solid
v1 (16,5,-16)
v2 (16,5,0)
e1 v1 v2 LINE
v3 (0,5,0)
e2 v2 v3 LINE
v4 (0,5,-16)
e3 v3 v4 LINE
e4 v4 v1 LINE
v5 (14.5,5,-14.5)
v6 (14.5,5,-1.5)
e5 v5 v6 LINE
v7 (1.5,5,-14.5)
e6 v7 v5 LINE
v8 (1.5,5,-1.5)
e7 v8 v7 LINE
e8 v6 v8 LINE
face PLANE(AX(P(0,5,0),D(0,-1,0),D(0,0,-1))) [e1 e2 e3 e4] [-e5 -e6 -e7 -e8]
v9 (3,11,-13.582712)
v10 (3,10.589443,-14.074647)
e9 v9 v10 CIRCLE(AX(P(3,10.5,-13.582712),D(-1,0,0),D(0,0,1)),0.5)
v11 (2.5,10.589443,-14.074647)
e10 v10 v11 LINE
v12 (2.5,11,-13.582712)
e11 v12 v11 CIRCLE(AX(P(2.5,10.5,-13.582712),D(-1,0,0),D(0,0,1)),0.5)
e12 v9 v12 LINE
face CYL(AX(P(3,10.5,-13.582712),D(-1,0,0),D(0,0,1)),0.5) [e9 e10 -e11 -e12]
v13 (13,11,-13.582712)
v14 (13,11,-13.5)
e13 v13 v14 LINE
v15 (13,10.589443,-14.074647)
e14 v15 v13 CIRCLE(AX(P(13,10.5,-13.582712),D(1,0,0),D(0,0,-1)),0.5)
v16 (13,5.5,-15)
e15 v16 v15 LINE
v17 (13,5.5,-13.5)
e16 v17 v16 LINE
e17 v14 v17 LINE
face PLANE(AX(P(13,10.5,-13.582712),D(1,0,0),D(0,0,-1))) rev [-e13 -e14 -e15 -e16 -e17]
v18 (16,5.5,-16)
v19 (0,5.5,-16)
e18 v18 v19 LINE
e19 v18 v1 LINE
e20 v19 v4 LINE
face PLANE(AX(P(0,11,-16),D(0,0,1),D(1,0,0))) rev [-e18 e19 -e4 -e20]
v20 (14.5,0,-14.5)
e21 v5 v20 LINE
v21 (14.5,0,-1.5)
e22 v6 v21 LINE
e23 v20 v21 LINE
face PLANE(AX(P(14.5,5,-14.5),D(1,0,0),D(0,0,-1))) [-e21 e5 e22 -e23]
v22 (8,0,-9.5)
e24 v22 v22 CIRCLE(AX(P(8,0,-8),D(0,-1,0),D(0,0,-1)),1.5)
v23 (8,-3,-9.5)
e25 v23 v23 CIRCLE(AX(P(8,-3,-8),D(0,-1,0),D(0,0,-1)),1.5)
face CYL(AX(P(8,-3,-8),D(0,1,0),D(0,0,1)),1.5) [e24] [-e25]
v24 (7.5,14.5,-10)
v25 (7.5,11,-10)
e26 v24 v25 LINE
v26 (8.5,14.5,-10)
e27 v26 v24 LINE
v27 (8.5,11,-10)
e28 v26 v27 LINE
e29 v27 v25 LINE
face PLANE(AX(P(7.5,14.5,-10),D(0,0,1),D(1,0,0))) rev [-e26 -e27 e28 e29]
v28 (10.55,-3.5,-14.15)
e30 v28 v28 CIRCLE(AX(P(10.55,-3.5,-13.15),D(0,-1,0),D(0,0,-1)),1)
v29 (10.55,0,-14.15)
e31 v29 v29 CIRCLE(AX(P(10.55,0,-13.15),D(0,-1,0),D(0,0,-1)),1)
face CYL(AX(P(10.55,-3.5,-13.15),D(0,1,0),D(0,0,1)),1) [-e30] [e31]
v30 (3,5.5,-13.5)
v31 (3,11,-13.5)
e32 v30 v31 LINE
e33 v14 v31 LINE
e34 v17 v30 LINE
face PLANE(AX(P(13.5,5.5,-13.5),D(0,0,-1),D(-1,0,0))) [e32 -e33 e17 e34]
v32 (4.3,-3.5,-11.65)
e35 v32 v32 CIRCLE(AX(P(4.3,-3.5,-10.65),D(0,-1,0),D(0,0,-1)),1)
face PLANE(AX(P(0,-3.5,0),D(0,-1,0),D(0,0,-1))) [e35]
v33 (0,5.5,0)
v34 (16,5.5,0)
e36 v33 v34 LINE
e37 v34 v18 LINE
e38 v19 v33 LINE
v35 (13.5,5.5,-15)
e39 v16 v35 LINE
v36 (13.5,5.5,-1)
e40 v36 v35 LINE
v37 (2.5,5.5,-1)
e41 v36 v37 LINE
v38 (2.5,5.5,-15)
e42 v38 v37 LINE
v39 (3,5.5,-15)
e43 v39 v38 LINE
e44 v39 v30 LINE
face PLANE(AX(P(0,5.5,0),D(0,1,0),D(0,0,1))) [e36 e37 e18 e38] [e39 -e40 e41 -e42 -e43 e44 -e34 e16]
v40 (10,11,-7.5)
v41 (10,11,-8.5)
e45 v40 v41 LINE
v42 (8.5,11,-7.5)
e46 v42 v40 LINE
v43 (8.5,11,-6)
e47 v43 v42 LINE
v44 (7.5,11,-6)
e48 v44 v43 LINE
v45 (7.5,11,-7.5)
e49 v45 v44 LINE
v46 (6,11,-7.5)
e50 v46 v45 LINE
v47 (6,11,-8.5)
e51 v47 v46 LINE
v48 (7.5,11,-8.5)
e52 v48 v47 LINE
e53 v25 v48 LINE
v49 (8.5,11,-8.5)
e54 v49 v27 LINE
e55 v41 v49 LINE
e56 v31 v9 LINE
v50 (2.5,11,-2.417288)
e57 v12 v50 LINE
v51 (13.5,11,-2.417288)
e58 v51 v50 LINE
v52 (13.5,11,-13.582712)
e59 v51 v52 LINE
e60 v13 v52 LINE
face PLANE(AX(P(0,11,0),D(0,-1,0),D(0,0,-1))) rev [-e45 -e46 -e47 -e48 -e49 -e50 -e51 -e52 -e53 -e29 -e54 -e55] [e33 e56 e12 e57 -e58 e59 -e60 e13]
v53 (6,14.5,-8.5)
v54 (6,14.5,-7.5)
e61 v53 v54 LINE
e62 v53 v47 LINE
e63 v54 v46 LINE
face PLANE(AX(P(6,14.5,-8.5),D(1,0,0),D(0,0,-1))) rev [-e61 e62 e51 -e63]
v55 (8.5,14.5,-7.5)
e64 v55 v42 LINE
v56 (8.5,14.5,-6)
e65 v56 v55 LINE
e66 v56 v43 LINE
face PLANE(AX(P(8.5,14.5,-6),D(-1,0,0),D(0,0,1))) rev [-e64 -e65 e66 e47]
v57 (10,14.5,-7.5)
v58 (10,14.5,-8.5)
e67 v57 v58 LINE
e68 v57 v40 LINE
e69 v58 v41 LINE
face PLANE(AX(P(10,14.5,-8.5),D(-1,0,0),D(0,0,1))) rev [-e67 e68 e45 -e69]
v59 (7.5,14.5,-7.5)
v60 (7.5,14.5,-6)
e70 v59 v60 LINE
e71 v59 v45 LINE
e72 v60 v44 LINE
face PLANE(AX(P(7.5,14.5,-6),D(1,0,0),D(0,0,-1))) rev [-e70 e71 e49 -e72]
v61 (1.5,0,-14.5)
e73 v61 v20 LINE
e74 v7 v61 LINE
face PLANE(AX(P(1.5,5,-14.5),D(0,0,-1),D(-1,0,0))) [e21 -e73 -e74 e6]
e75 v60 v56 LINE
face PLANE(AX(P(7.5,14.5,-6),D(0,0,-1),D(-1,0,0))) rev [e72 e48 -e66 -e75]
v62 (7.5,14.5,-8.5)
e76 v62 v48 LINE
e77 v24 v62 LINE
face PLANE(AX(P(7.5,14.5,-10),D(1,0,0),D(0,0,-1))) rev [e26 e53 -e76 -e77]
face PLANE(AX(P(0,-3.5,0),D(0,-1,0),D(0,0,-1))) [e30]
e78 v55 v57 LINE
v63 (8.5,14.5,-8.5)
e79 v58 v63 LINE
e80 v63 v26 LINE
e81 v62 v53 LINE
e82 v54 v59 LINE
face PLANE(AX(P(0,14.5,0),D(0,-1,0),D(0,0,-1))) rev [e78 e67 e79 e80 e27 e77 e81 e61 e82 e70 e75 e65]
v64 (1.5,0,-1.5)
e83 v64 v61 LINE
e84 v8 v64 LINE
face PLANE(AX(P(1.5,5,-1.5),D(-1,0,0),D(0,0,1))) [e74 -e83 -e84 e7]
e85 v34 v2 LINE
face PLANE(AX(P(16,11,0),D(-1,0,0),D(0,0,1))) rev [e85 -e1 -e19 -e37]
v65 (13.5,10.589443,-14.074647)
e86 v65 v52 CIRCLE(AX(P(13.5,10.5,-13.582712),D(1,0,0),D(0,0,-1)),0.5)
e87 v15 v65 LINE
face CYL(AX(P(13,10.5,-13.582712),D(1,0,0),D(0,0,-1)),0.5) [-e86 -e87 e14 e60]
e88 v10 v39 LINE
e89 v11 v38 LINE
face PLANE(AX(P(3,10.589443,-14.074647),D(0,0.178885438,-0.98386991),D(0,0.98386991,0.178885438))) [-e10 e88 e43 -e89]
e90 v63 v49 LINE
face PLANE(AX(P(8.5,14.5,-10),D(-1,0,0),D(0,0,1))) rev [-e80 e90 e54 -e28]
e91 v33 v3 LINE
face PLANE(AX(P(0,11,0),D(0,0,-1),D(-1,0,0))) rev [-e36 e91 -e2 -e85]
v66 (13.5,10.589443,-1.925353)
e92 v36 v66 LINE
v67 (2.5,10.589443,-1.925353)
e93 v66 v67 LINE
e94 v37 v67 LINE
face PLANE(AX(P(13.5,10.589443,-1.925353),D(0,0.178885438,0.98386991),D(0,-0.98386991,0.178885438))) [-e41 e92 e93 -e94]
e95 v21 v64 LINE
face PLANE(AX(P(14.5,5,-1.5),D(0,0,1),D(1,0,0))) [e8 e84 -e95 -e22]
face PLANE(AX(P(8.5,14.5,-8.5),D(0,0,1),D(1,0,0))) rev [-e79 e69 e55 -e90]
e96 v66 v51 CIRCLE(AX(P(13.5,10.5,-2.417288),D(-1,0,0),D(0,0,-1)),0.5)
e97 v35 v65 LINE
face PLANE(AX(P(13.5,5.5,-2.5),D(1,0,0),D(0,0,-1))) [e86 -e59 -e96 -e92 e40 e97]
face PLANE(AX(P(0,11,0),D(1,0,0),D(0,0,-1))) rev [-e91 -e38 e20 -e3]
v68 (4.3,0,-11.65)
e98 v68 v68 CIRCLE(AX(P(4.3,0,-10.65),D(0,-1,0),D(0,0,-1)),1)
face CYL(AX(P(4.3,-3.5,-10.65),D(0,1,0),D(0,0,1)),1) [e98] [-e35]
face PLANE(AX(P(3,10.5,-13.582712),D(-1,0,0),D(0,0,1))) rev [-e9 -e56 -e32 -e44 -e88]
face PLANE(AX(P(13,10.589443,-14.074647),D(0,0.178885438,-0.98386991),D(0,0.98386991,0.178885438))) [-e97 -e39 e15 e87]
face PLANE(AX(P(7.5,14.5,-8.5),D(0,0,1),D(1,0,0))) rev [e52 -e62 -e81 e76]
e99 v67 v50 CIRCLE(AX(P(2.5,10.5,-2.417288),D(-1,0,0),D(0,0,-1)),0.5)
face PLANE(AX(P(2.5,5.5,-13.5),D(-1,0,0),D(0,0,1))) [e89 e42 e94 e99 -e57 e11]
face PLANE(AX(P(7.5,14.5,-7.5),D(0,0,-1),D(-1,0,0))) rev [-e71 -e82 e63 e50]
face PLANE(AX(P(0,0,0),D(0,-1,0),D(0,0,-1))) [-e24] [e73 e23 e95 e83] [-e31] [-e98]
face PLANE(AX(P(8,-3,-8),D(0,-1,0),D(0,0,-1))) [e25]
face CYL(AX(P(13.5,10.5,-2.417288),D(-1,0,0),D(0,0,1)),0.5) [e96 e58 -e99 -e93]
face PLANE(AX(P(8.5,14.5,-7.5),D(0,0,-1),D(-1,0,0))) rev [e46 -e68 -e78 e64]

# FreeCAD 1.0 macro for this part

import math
import FreeCAD as App
import Part
import Sketcher
Q = App.Units.Quantity


def add_polygon(sketch, points):
    """Adds a closed chain of lines whose ends are joined by coincident constraints."""
    first, n = sketch.GeometryCount, len(points)
    for a, b in zip(points, points[1:] + points[:1]):
        sketch.addGeometry(Part.LineSegment(App.Vector(*a, 0), App.Vector(*b, 0)), False)
    for i in range(n):
        sketch.addConstraint(Sketcher.Constraint("Coincident", first + i, 2, first + (i + 1) % n, 1))

doc = App.newDocument("Part")
body = doc.addObject("PartDesign::Body", "Body")

sketch1 = body.newObject("Sketcher::SketchObject", "Sketch")
sketch1.AttachmentSupport = (doc.getObject("XZ_Plane"), [""])
sketch1.MapMode = "FlatFace"
add_polygon(sketch1, [(0, -16), (0, 0), (16, 0), (16, -16)])
sketch1.addConstraint(Sketcher.Constraint("Vertical", 0))
sketch1.addConstraint(Sketcher.Constraint("Horizontal", 1))
sketch1.addConstraint(Sketcher.Constraint("Vertical", 2))
sketch1.addConstraint(Sketcher.Constraint("Horizontal", 3))
sketch1.addConstraint(Sketcher.Constraint("Coincident", 0, 2, -1, 1))
sketch1.addConstraint(Sketcher.Constraint("Equal", 3, 0))
sketch1.addConstraint(Sketcher.Constraint("DistanceX", 1, 1, 1, 2, Q("16 mm")))
pad1 = body.newObject("PartDesign::Pad", "Pad")
pad1.Profile = sketch1
pad1.Length = 11
pad1.Reversed = True

sketch2 = body.newObject("Sketcher::SketchObject", "Sketch001")
sketch2.AttachmentSupport = (doc.getObject("XZ_Plane"), [""])
sketch2.MapMode = "FlatFace"
sketch2.addGeometry(Part.Circle(App.Vector(8, -8, 0), App.Vector(0, 0, 1), 1.5), False)
sketch2.addConstraint(Sketcher.Constraint("Diameter", 0, Q("3 mm")))
sketch2.addConstraint(Sketcher.Constraint("DistanceX", -1, 1, 0, 3, Q("8 mm")))
sketch2.addConstraint(Sketcher.Constraint("DistanceY", 0, 3, -1, 1, Q("8 mm")))
pad2 = body.newObject("PartDesign::Pad", "Pad001")
pad2.Profile = sketch2
pad2.Length = 3

sketch3 = body.newObject("Sketcher::SketchObject", "Sketch002")
sketch3.AttachmentSupport = (doc.getObject("XZ_Plane"), [""])
sketch3.MapMode = "FlatFace"
add_polygon(sketch3, [(0, 0), (0, -16), (16, -16), (16, 0)])
add_polygon(sketch3, [(14.5, -14.5), (1.5, -14.5), (1.5, -1.5), (14.5, -1.5)])
sketch3.addConstraint(Sketcher.Constraint("Vertical", 0))
sketch3.addConstraint(Sketcher.Constraint("Horizontal", 1))
sketch3.addConstraint(Sketcher.Constraint("Vertical", 2))
sketch3.addConstraint(Sketcher.Constraint("Horizontal", 3))
sketch3.addConstraint(Sketcher.Constraint("Horizontal", 4))
sketch3.addConstraint(Sketcher.Constraint("Vertical", 5))
sketch3.addConstraint(Sketcher.Constraint("Horizontal", 6))
sketch3.addConstraint(Sketcher.Constraint("Vertical", 7))
sketch3.addConstraint(Sketcher.Constraint("Coincident", 3, 2, -1, 1))
sketch3.addConstraint(Sketcher.Constraint("Equal", 3, 0))
sketch3.addConstraint(Sketcher.Constraint("Equal", 6, 5))
sketch3.addConstraint(Sketcher.Constraint("DistanceX", 1, 1, 1, 2, Q("16 mm")))
sketch3.addConstraint(Sketcher.Constraint("DistanceX", 4, 2, 4, 1, Q("13 mm")))
sketch3.addConstraint(Sketcher.Constraint("DistanceX", -1, 1, 4, 2, Q("1.5 mm")))
sketch3.addConstraint(Sketcher.Constraint("DistanceY", 4, 2, -1, 1, Q("14.5 mm")))
pocket1 = body.newObject("PartDesign::Pocket", "Pocket")
pocket1.Profile = sketch3
pocket1.Length = 5

sketch4 = body.newObject("Sketcher::SketchObject", "Sketch003")
sketch4.AttachmentSupport = (doc.getObject("XZ_Plane"), [""])
sketch4.MapMode = "FlatFace"
sketch4.AttachmentOffset = App.Placement(App.Vector(0, 0, -11), App.Rotation())
add_polygon(sketch4, [(7.5, -10), (7.5, -8.5), (6, -8.5), (6, -7.5), (7.5, -7.5), (7.5, -6), (8.5, -6), (8.5, -7.5), (10, -7.5), (10, -8.5), (8.5, -8.5), (8.5, -10)])
sketch4.addConstraint(Sketcher.Constraint("Vertical", 0))
sketch4.addConstraint(Sketcher.Constraint("Horizontal", 1))
sketch4.addConstraint(Sketcher.Constraint("Vertical", 2))
sketch4.addConstraint(Sketcher.Constraint("Horizontal", 3))
sketch4.addConstraint(Sketcher.Constraint("Vertical", 4))
sketch4.addConstraint(Sketcher.Constraint("Horizontal", 5))
sketch4.addConstraint(Sketcher.Constraint("Vertical", 6))
sketch4.addConstraint(Sketcher.Constraint("Horizontal", 7))
sketch4.addConstraint(Sketcher.Constraint("Vertical", 8))
sketch4.addConstraint(Sketcher.Constraint("Horizontal", 9))
sketch4.addConstraint(Sketcher.Constraint("Vertical", 10))
sketch4.addConstraint(Sketcher.Constraint("Horizontal", 11))
sketch4.addConstraint(Sketcher.Constraint("Horizontal", 3, 2, 6, 2))
sketch4.addConstraint(Sketcher.Constraint("Horizontal", 1, 2, 8, 2))
sketch4.addConstraint(Sketcher.Constraint("Vertical", 0, 2, 3, 2))
sketch4.addConstraint(Sketcher.Constraint("Vertical", 6, 2, 9, 2))
sketch4.addConstraint(Sketcher.Constraint("Equal", 3, 7))
sketch4.addConstraint(Sketcher.Constraint("Equal", 9, 0))
sketch4.addConstraint(Sketcher.Constraint("Equal", 11, 2))
sketch4.addConstraint(Sketcher.Constraint("Equal", 0, 4))
sketch4.addConstraint(Sketcher.Constraint("DistanceX", 5, 1, 5, 2, Q("1 mm")))
sketch4.addConstraint(Sketcher.Constraint("DistanceX", 1, 2, 1, 1, Q("1.5 mm")))
sketch4.addConstraint(Sketcher.Constraint("DistanceX", -1, 1, 1, 2, Q("6 mm")))
sketch4.addConstraint(Sketcher.Constraint("DistanceY", 4, 2, -1, 1, Q("6 mm")))
pad3 = body.newObject("PartDesign::Pad", "Pad002")
pad3.Profile = sketch4
pad3.Length = 3.5
pad3.Reversed = True

sketch5 = body.newObject("Sketcher::SketchObject", "Sketch004")
sketch5.AttachmentSupport = (doc.getObject("XZ_Plane"), [""])
sketch5.MapMode = "FlatFace"
sketch5.AttachmentOffset = App.Placement(App.Vector(0, 0, -11), App.Rotation())
add_polygon(sketch5, [(0, -16), (0, 0), (16, 0), (16, -16)])
add_polygon(sketch5, [(13.5, -2.5), (2.5, -2.5), (2.5, -13.5), (13.5, -13.5)])
sketch5.addConstraint(Sketcher.Constraint("Vertical", 0))
sketch5.addConstraint(Sketcher.Constraint("Horizontal", 1))
sketch5.addConstraint(Sketcher.Constraint("Vertical", 2))
sketch5.addConstraint(Sketcher.Constraint("Horizontal", 3))
sketch5.addConstraint(Sketcher.Constraint("Horizontal", 4))
sketch5.addConstraint(Sketcher.Constraint("Vertical", 5))
sketch5.addConstraint(Sketcher.Constraint("Horizontal", 6))
sketch5.addConstraint(Sketcher.Constraint("Vertical", 7))
sketch5.addConstraint(Sketcher.Constraint("Coincident", 0, 2, -1, 1))
sketch5.addConstraint(Sketcher.Constraint("Equal", 3, 0))
sketch5.addConstraint(Sketcher.Constraint("Equal", 6, 5))
sketch5.addConstraint(Sketcher.Constraint("DistanceX", 1, 1, 1, 2, Q("16 mm")))
sketch5.addConstraint(Sketcher.Constraint("DistanceX", 4, 2, 4, 1, Q("11 mm")))
sketch5.addConstraint(Sketcher.Constraint("DistanceX", -1, 1, 4, 2, Q("2.5 mm")))
sketch5.addConstraint(Sketcher.Constraint("DistanceY", 4, 2, -1, 1, Q("2.5 mm")))
pocket2 = body.newObject("PartDesign::Pocket", "Pocket001")
pocket2.Profile = sketch5
pocket2.Length = 5.5
pocket2.Reversed = True

sketch6 = body.newObject("Sketcher::SketchObject", "Sketch005")
sketch6.AttachmentSupport = (doc.getObject("YZ_Plane"), [""])
sketch6.MapMode = "FlatFace"
sketch6.AttachmentOffset = App.Placement(App.Vector(0, 0, 2.5), App.Rotation())
sketch6.addGeometry(Part.LineSegment(App.Vector(11, -13.5, 0), App.Vector(11, -13.582712, 0)), False)
sketch6.addGeometry(Part.ArcOfCircle(Part.Circle(App.Vector(10.5, -13.582712, 0), App.Vector(0, 0, 1), 0.5), math.radians(-79.695154), math.radians(0)), False)
sketch6.addGeometry(Part.LineSegment(App.Vector(10.589443, -14.074647, 0), App.Vector(5.5, -15, 0)), False)
sketch6.addGeometry(Part.LineSegment(App.Vector(5.5, -15, 0), App.Vector(5.5, -13.5, 0)), False)
sketch6.addGeometry(Part.LineSegment(App.Vector(5.5, -13.5, 0), App.Vector(11, -13.5, 0)), False)
sketch6.addConstraint(Sketcher.Constraint("Tangent", 0, 2, 1, 2))
sketch6.addConstraint(Sketcher.Constraint("Tangent", 1, 1, 2, 1))
sketch6.addConstraint(Sketcher.Constraint("Coincident", 2, 2, 3, 1))
sketch6.addConstraint(Sketcher.Constraint("Coincident", 3, 2, 4, 1))
sketch6.addConstraint(Sketcher.Constraint("Coincident", 4, 2, 0, 1))
sketch6.addConstraint(Sketcher.Constraint("Vertical", 0))
sketch6.addConstraint(Sketcher.Constraint("Vertical", 3))
sketch6.addConstraint(Sketcher.Constraint("Horizontal", 4))
sketch6.addConstraint(Sketcher.Constraint("Radius", 1, Q("0.5 mm")))
sketch6.addConstraint(Sketcher.Constraint("DistanceX", 4, 1, 4, 2, Q("5.5 mm")))
sketch6.addConstraint(Sketcher.Constraint("DistanceY", 3, 1, 3, 2, Q("1.5 mm")))
sketch6.addConstraint(Sketcher.Constraint("DistanceX", -1, 1, 0, 2, Q("11 mm")))
sketch6.addConstraint(Sketcher.Constraint("DistanceY", 2, 2, -1, 1, Q("15 mm")))
sketch6.addConstraint(Sketcher.Constraint("DistanceY", 0, 2, 0, 1, Q("0.082712 mm")))
pad4 = body.newObject("PartDesign::Pad", "Pad003")
pad4.Profile = sketch6
pad4.Length = 0.5

sketch7 = body.newObject("Sketcher::SketchObject", "Sketch006")
sketch7.AttachmentSupport = (doc.getObject("YZ_Plane"), [""])
sketch7.MapMode = "FlatFace"
sketch7.AttachmentOffset = App.Placement(App.Vector(0, 0, 13), App.Rotation())
sketch7.addGeometry(Part.LineSegment(App.Vector(5.5, -13.5, 0), App.Vector(5.5, -15, 0)), False)
sketch7.addGeometry(Part.LineSegment(App.Vector(5.5, -15, 0), App.Vector(10.589443, -14.074647, 0)), False)
sketch7.addGeometry(Part.ArcOfCircle(Part.Circle(App.Vector(10.5, -13.582712, 0), App.Vector(0, 0, 1), 0.5), math.radians(-79.695154), math.radians(0)), False)
sketch7.addGeometry(Part.LineSegment(App.Vector(11, -13.582712, 0), App.Vector(11, -13.5, 0)), False)
sketch7.addGeometry(Part.LineSegment(App.Vector(11, -13.5, 0), App.Vector(5.5, -13.5, 0)), False)
sketch7.addConstraint(Sketcher.Constraint("Coincident", 0, 2, 1, 1))
sketch7.addConstraint(Sketcher.Constraint("Tangent", 1, 2, 2, 1))
sketch7.addConstraint(Sketcher.Constraint("Tangent", 2, 2, 3, 1))
sketch7.addConstraint(Sketcher.Constraint("Coincident", 3, 2, 4, 1))
sketch7.addConstraint(Sketcher.Constraint("Coincident", 4, 2, 0, 1))
sketch7.addConstraint(Sketcher.Constraint("Vertical", 0))
sketch7.addConstraint(Sketcher.Constraint("Vertical", 3))
sketch7.addConstraint(Sketcher.Constraint("Horizontal", 4))
sketch7.addConstraint(Sketcher.Constraint("Radius", 2, Q("0.5 mm")))
sketch7.addConstraint(Sketcher.Constraint("DistanceX", 4, 2, 4, 1, Q("5.5 mm")))
sketch7.addConstraint(Sketcher.Constraint("DistanceY", 0, 2, 0, 1, Q("1.5 mm")))
sketch7.addConstraint(Sketcher.Constraint("DistanceY", 0, 2, -1, 1, Q("15 mm")))
sketch7.addConstraint(Sketcher.Constraint("DistanceX", -1, 1, 2, 2, Q("11 mm")))
sketch7.addConstraint(Sketcher.Constraint("DistanceY", 3, 1, 3, 2, Q("0.082712 mm")))
pad5 = body.newObject("PartDesign::Pad", "Pad004")
pad5.Profile = sketch7
pad5.Length = 0.5

sketch8 = body.newObject("Sketcher::SketchObject", "Sketch007")
sketch8.AttachmentSupport = (doc.getObject("YZ_Plane"), [""])
sketch8.MapMode = "FlatFace"
sketch8.AttachmentOffset = App.Placement(App.Vector(0, 0, 2.5), App.Rotation())
sketch8.addGeometry(Part.LineSegment(App.Vector(11, -2.417288, 0), App.Vector(11, -2.5, 0)), False)
sketch8.addGeometry(Part.LineSegment(App.Vector(11, -2.5, 0), App.Vector(5.5, -2.5, 0)), False)
sketch8.addGeometry(Part.LineSegment(App.Vector(5.5, -2.5, 0), App.Vector(5.5, -1, 0)), False)
sketch8.addGeometry(Part.LineSegment(App.Vector(5.5, -1, 0), App.Vector(10.589443, -1.925353, 0)), False)
sketch8.addGeometry(Part.ArcOfCircle(Part.Circle(App.Vector(10.5, -2.417288, 0), App.Vector(0, 0, 1), 0.5), math.radians(0), math.radians(79.695154)), False)
sketch8.addConstraint(Sketcher.Constraint("Coincident", 0, 2, 1, 1))
sketch8.addConstraint(Sketcher.Constraint("Coincident", 1, 2, 2, 1))
sketch8.addConstraint(Sketcher.Constraint("Coincident", 2, 2, 3, 1))
sketch8.addConstraint(Sketcher.Constraint("Tangent", 3, 2, 4, 2))
sketch8.addConstraint(Sketcher.Constraint("Tangent", 4, 1, 0, 1))
sketch8.addConstraint(Sketcher.Constraint("Vertical", 0))
sketch8.addConstraint(Sketcher.Constraint("Horizontal", 1))
sketch8.addConstraint(Sketcher.Constraint("Vertical", 2))
sketch8.addConstraint(Sketcher.Constraint("Radius", 4, Q("0.5 mm")))
sketch8.addConstraint(Sketcher.Constraint("DistanceX", 1, 2, 1, 1, Q("5.5 mm")))
sketch8.addConstraint(Sketcher.Constraint("DistanceY", 2, 1, 2, 2, Q("1.5 mm")))
sketch8.addConstraint(Sketcher.Constraint("DistanceX", -1, 1, 0, 2, Q("11 mm")))
sketch8.addConstraint(Sketcher.Constraint("DistanceY", 2, 2, -1, 1, Q("1 mm")))
sketch8.addConstraint(Sketcher.Constraint("DistanceY", 0, 2, 0, 1, Q("0.082712 mm")))
pad6 = body.newObject("PartDesign::Pad", "Pad005")
pad6.Profile = sketch8
pad6.Length = 11

sketch9 = body.newObject("Sketcher::SketchObject", "Sketch008")
sketch9.AttachmentSupport = (doc.getObject("XZ_Plane"), [""])
sketch9.MapMode = "FlatFace"
sketch9.addGeometry(Part.Circle(App.Vector(4.3, -10.65, 0), App.Vector(0, 0, 1), 1), False)
sketch9.addGeometry(Part.Circle(App.Vector(10.55, -13.15, 0), App.Vector(0, 0, 1), 1), False)
sketch9.addConstraint(Sketcher.Constraint("Equal", 0, 1))
sketch9.addConstraint(Sketcher.Constraint("Diameter", 0, Q("2 mm")))
sketch9.addConstraint(Sketcher.Constraint("DistanceX", -1, 1, 0, 3, Q("4.3 mm")))
sketch9.addConstraint(Sketcher.Constraint("DistanceY", 1, 3, 0, 3, Q("2.5 mm")))
sketch9.addConstraint(Sketcher.Constraint("DistanceY", 0, 3, -1, 1, Q("10.65 mm")))
sketch9.addConstraint(Sketcher.Constraint("DistanceX", -1, 1, 1, 3, Q("10.55 mm")))
pad7 = body.newObject("PartDesign::Pad", "Pad006")
pad7.Profile = sketch9
pad7.Length = 3.5

doc.recompute()
